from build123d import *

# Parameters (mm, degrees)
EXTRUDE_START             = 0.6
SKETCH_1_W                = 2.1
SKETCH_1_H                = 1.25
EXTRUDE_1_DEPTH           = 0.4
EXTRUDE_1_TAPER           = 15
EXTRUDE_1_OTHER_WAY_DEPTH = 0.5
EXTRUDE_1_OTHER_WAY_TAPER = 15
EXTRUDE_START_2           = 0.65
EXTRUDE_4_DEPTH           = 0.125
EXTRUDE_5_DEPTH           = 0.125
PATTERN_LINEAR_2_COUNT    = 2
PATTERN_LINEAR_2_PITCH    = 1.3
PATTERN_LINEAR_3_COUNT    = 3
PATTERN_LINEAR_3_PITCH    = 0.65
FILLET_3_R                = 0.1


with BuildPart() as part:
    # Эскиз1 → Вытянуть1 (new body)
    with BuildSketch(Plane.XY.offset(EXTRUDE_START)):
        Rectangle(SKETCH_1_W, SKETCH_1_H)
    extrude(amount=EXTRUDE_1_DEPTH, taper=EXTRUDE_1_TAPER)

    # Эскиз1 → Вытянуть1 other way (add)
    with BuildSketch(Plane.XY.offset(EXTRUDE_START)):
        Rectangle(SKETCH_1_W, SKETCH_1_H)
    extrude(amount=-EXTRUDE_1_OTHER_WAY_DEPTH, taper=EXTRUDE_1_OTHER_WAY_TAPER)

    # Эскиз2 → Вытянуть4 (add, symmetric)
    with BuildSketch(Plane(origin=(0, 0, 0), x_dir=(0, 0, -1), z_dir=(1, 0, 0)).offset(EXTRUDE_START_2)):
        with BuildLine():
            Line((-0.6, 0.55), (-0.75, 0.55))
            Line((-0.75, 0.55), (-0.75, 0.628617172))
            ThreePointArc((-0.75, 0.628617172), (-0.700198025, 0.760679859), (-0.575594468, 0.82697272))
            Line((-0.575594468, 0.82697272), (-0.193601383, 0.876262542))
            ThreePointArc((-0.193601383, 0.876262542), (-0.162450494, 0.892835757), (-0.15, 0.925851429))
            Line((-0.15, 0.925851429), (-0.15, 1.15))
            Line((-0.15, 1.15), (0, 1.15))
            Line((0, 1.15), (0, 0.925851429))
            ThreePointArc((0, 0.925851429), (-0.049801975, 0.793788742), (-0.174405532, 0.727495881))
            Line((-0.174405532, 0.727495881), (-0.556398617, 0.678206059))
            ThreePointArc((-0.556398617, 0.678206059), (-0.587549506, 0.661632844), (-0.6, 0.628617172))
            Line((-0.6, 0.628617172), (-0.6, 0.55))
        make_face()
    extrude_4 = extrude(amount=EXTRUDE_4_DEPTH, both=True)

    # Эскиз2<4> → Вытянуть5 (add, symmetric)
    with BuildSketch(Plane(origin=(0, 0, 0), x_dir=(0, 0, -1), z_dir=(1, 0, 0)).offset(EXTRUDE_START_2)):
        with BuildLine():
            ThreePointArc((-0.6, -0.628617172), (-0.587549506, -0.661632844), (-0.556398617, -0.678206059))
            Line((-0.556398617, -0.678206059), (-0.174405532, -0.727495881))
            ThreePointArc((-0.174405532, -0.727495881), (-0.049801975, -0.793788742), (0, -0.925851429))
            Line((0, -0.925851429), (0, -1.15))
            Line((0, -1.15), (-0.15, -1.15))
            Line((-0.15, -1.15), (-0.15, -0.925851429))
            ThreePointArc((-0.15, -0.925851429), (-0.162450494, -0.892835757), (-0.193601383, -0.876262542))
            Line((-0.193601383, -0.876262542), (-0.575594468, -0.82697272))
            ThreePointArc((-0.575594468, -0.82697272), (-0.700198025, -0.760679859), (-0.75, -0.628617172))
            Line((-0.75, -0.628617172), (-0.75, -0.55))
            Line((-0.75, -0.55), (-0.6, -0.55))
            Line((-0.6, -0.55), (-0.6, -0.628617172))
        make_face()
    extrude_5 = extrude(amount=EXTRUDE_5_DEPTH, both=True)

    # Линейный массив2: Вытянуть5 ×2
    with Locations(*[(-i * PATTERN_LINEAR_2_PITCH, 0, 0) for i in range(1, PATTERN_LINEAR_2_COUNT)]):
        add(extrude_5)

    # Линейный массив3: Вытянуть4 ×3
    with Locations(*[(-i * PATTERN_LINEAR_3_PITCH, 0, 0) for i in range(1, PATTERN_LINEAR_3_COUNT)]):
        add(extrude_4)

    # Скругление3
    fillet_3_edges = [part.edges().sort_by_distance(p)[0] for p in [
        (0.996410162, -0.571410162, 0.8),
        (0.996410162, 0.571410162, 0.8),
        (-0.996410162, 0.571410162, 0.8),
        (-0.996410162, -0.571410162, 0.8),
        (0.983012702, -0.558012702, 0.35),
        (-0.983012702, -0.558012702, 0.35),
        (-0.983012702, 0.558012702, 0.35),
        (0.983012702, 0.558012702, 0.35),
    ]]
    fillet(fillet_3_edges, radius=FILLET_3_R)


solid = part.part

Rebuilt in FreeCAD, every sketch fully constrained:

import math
import FreeCAD as App
import Part
import Sketcher

V = App.Vector
Q = App.Units.Quantity


def edges_at(feature, points):
    """Names of the edges that pass closest to the given points."""
    edges = feature.Shape.Edges
    near = lambda p: min(range(len(edges)), key=lambda i: edges[i].distToShape(Part.Vertex(*p))[0])
    return sorted({f"Edge{near(p) + 1}" for p in points})


def add_polygon(sketch, points):
    """Adds a closed chain of lines whose ends are joined by coincident constraints."""
    first, n = sketch.GeometryCount, len(points)
    for a, b in zip(points, points[1:] + points[:1]):
        sketch.addGeometry(Part.LineSegment(App.Vector(*a, 0), App.Vector(*b, 0)), False)
    for i in range(n):
        sketch.addConstraint(Sketcher.Constraint("Coincident", first + i, 2, first + (i + 1) % n, 1))

doc = App.newDocument("Part")
body = doc.addObject("PartDesign::Body", "Body")

# Sketch on XY plane
sketch1 = body.newObject("Sketcher::SketchObject", "Sketch")
sketch1.AttachmentSupport = (doc.getObject("XY_Plane"), [""])
sketch1.MapMode = "FlatFace"
sketch1.AttachmentOffset = App.Placement(V(0, 0, 0.6), App.Rotation())
add_polygon(sketch1, [(-1.1, 0.6), (-1.1, -0.6), (1.1, -0.6), (1.1, 0.6)])  # lines 0-3
sketch1.addConstraint(Sketcher.Constraint("Vertical", 0))
sketch1.addConstraint(Sketcher.Constraint("Horizontal", 1))
sketch1.addConstraint(Sketcher.Constraint("Vertical", 2))
sketch1.addConstraint(Sketcher.Constraint("Horizontal", 3))
sketch1.addConstraint(Sketcher.Constraint("Symmetric", 0, 2, 2, 2, -1, 1))
sketch1.addConstraint(Sketcher.Constraint("DistanceX", 1, 1, 1, 2, Q("2.1 mm")))
sketch1.addConstraint(Sketcher.Constraint("DistanceY", 0, 2, 0, 1, Q("1.25 mm")))
pad1 = body.newObject("PartDesign::Pad", "Pad")
pad1.Profile = sketch1
pad1.Length = 0.4
pad1.TaperAngle = -15

# Sketch on XY plane
sketch2 = body.newObject("Sketcher::SketchObject", "Sketch001")
sketch2.AttachmentSupport = (doc.getObject("XY_Plane"), [""])
sketch2.MapMode = "FlatFace"
sketch2.AttachmentOffset = App.Placement(V(0, 0, 0.6), App.Rotation())
add_polygon(sketch2, [(-1.1, 0.6), (-1.1, -0.6), (1.1, -0.6), (1.1, 0.6)])  # lines 0-3
sketch2.addConstraint(Sketcher.Constraint("Vertical", 0))
sketch2.addConstraint(Sketcher.Constraint("Horizontal", 1))
sketch2.addConstraint(Sketcher.Constraint("Vertical", 2))
sketch2.addConstraint(Sketcher.Constraint("Horizontal", 3))
sketch2.addConstraint(Sketcher.Constraint("Symmetric", 0, 2, 2, 2, -1, 1))
sketch2.addConstraint(Sketcher.Constraint("DistanceX", 1, 1, 1, 2, Q("2.1 mm")))
sketch2.addConstraint(Sketcher.Constraint("DistanceY", 0, 2, 0, 1, Q("1.25 mm")))
pad2 = body.newObject("PartDesign::Pad", "Pad001")
pad2.Profile = sketch2
pad2.Length = 0.5
pad2.Reversed = True
pad2.TaperAngle = -15

# Sketch on YZ plane
sketch3 = body.newObject("Sketcher::SketchObject", "Sketch002")
sketch3.AttachmentSupport = (doc.getObject("YZ_Plane"), [""])
sketch3.MapMode = "FlatFace"
sketch3.AttachmentOffset = App.Placement(V(0, 0, 0.65), App.Rotation())
sketch3.addGeometry(Part.LineSegment(V(0.55, 0.75, 0), V(0.55, 0.6, 0)), False)
sketch3.addGeometry(Part.LineSegment(V(0.55, 0.6, 0), V(0.63, 0.6, 0)), False)
sketch3.addGeometry(Part.ArcOfCircle(Part.Circle(V(0.63, 0.55, 0), V(0, 0, 1), 0.05), math.radians(7), math.radians(90)), False)
sketch3.addGeometry(Part.LineSegment(V(0.68, 0.56, 0), V(0.73, 0.17, 0)), False)
sketch3.addGeometry(Part.ArcOfCircle(Part.Circle(V(0.93, 0.2, 0), V(0, 0, 1), 0.2), math.radians(-173), math.radians(-90)), False)
sketch3.addGeometry(Part.LineSegment(V(0.93, 0, 0), V(1.15, 0, 0)), False)
sketch3.addGeometry(Part.LineSegment(V(1.15, 0, 0), V(1.15, 0.15, 0)), False)
sketch3.addGeometry(Part.LineSegment(V(1.15, 0.15, 0), V(0.93, 0.15, 0)), False)
sketch3.addGeometry(Part.ArcOfCircle(Part.Circle(V(0.93, 0.2, 0), V(0, 0, 1), 0.05), math.radians(-173), math.radians(-90)), False)
sketch3.addGeometry(Part.LineSegment(V(0.88, 0.19, 0), V(0.83, 0.58, 0)), False)
sketch3.addGeometry(Part.ArcOfCircle(Part.Circle(V(0.63, 0.55, 0), V(0, 0, 1), 0.2), math.radians(7), math.radians(90)), False)
sketch3.addGeometry(Part.LineSegment(V(0.63, 0.75, 0), V(0.55, 0.75, 0)), False)
sketch3.addConstraint(Sketcher.Constraint("Coincident", 0, 2, 1, 1))
sketch3.addConstraint(Sketcher.Constraint("Tangent", 1, 2, 2, 2))
sketch3.addConstraint(Sketcher.Constraint("Tangent", 2, 1, 3, 1))
sketch3.addConstraint(Sketcher.Constraint("Tangent", 3, 2, 4, 1))
sketch3.addConstraint(Sketcher.Constraint("Tangent", 4, 2, 5, 1))
sketch3.addConstraint(Sketcher.Constraint("Coincident", 5, 2, 6, 1))
sketch3.addConstraint(Sketcher.Constraint("Coincident", 6, 2, 7, 1))
sketch3.addConstraint(Sketcher.Constraint("Tangent", 7, 2, 8, 2))
sketch3.addConstraint(Sketcher.Constraint("Tangent", 8, 1, 9, 1))
sketch3.addConstraint(Sketcher.Constraint("Tangent", 9, 2, 10, 1))
sketch3.addConstraint(Sketcher.Constraint("Tangent", 10, 2, 11, 1))
sketch3.addConstraint(Sketcher.Constraint("Coincident", 11, 2, 0, 1))
sketch3.addConstraint(Sketcher.Constraint("Vertical", 0))
sketch3.addConstraint(Sketcher.Constraint("Horizontal", 1))
sketch3.addConstraint(Sketcher.Constraint("Horizontal", 5))
sketch3.addConstraint(Sketcher.Constraint("Vertical", 6))
sketch3.addConstraint(Sketcher.Constraint("Horizontal", 7))
sketch3.addConstraint(Sketcher.Constraint("Horizontal", 11))
sketch3.addConstraint(Sketcher.Constraint("Coincident", 8, 3, 4, 3))
sketch3.addConstraint(Sketcher.Constraint("Coincident", 10, 3, 2, 3))
sketch3.addConstraint(Sketcher.Constraint("Equal", 2, 8))
sketch3.addConstraint(Sketcher.Constraint("Equal", 4, 10))
sketch3.addConstraint(Sketcher.Constraint("PointOnObject", 4, 2, -1))
sketch3.addConstraint(Sketcher.Constraint("Radius", 4, Q("0.2 mm")))
sketch3.addConstraint(Sketcher.Constraint("Radius", 2, Q("0.05 mm")))
sketch3.addConstraint(Sketcher.Constraint("DistanceY", -1, 1, 0, 2, Q("0.6 mm")))
sketch3.addConstraint(Sketcher.Constraint("DistanceX", -1, 1, 0, 2, Q("0.55 mm")))
sketch3.addConstraint(Sketcher.Constraint("DistanceX", -1, 1, 5, 2, Q("1.15 mm")))
sketch3.addConstraint(Sketcher.Constraint("DistanceX", 5, 1, 5, 2, Q("0.224149 mm")))
sketch3.addConstraint(Sketcher.Constraint("DistanceY", -1, 1, 2, 1, Q("0.556399 mm")))
pad3 = body.newObject("PartDesign::Pad", "Pad002")
pad3.Profile = sketch3
pad3.Length = 0.25
pad3.Midplane = True

# Sketch on YZ plane
sketch4 = body.newObject("Sketcher::SketchObject", "Sketch003")
sketch4.AttachmentSupport = (doc.getObject("YZ_Plane"), [""])
sketch4.MapMode = "FlatFace"
sketch4.AttachmentOffset = App.Placement(V(0, 0, 0.65), App.Rotation())
sketch4.addGeometry(Part.ArcOfCircle(Part.Circle(V(-0.63, 0.55, 0), V(0, 0, 1), 0.05), math.radians(90), math.radians(173)), False)
sketch4.addGeometry(Part.LineSegment(V(-0.63, 0.6, 0), V(-0.55, 0.6, 0)), False)
sketch4.addGeometry(Part.LineSegment(V(-0.55, 0.6, 0), V(-0.55, 0.75, 0)), False)
sketch4.addGeometry(Part.LineSegment(V(-0.55, 0.75, 0), V(-0.63, 0.75, 0)), False)
sketch4.addGeometry(Part.ArcOfCircle(Part.Circle(V(-0.63, 0.55, 0), V(0, 0, 1), 0.2), math.radians(90), math.radians(173)), False)
sketch4.addGeometry(Part.LineSegment(V(-0.83, 0.58, 0), V(-0.88, 0.19, 0)), False)
sketch4.addGeometry(Part.ArcOfCircle(Part.Circle(V(-0.93, 0.2, 0), V(0, 0, 1), 0.05), math.radians(-90), math.radians(-7)), False)
sketch4.addGeometry(Part.LineSegment(V(-0.93, 0.15, 0), V(-1.15, 0.15, 0)), False)
sketch4.addGeometry(Part.LineSegment(V(-1.15, 0.15, 0), V(-1.15, 0, 0)), False)
sketch4.addGeometry(Part.LineSegment(V(-1.15, 0, 0), V(-0.93, 0, 0)), False)
sketch4.addGeometry(Part.ArcOfCircle(Part.Circle(V(-0.93, 0.2, 0), V(0, 0, 1), 0.2), math.radians(-90), math.radians(-7)), False)
sketch4.addGeometry(Part.LineSegment(V(-0.73, 0.17, 0), V(-0.68, 0.56, 0)), False)
sketch4.addConstraint(Sketcher.Constraint("Tangent", 0, 1, 1, 1))
sketch4.addConstraint(Sketcher.Constraint("Coincident", 1, 2, 2, 1))
sketch4.addConstraint(Sketcher.Constraint("Coincident", 2, 2, 3, 1))
sketch4.addConstraint(Sketcher.Constraint("Tangent", 3, 2, 4, 1))
sketch4.addConstraint(Sketcher.Constraint("Tangent", 4, 2, 5, 1))
sketch4.addConstraint(Sketcher.Constraint("Tangent", 5, 2, 6, 2))
sketch4.addConstraint(Sketcher.Constraint("Tangent", 6, 1, 7, 1))
sketch4.addConstraint(Sketcher.Constraint("Coincident", 7, 2, 8, 1))
sketch4.addConstraint(Sketcher.Constraint("Coincident", 8, 2, 9, 1))
sketch4.addConstraint(Sketcher.Constraint("Tangent", 9, 2, 10, 1))
sketch4.addConstraint(Sketcher.Constraint("Tangent", 10, 2, 11, 1))
sketch4.addConstraint(Sketcher.Constraint("Tangent", 11, 2, 0, 2))
sketch4.addConstraint(Sketcher.Constraint("Horizontal", 1))
sketch4.addConstraint(Sketcher.Constraint("Vertical", 2))
sketch4.addConstraint(Sketcher.Constraint("Horizontal", 3))
sketch4.addConstraint(Sketcher.Constraint("Horizontal", 7))
sketch4.addConstraint(Sketcher.Constraint("Vertical", 8))
sketch4.addConstraint(Sketcher.Constraint("Horizontal", 9))
sketch4.addConstraint(Sketcher.Constraint("Coincident", 4, 3, 0, 3))
sketch4.addConstraint(Sketcher.Constraint("Coincident", 10, 3, 6, 3))
sketch4.addConstraint(Sketcher.Constraint("Equal", 0, 6))
sketch4.addConstraint(Sketcher.Constraint("Equal", 4, 10))
sketch4.addConstraint(Sketcher.Constraint("PointOnObject", 8, 2, -1))
sketch4.addConstraint(Sketcher.Constraint("Radius", 4, Q("0.2 mm")))
sketch4.addConstraint(Sketcher.Constraint("Radius", 0, Q("0.05 mm")))
sketch4.addConstraint(Sketcher.Constraint("DistanceY", -1, 1, 0, 1, Q("0.6 mm")))
sketch4.addConstraint(Sketcher.Constraint("DistanceX", 1, 2, -1, 1, Q("0.55 mm")))
sketch4.addConstraint(Sketcher.Constraint("DistanceX", 7, 2, -1, 1, Q("1.15 mm")))
sketch4.addConstraint(Sketcher.Constraint("DistanceX", 7, 2, 7, 1, Q("0.224149 mm")))
sketch4.addConstraint(Sketcher.Constraint("DistanceY", -1, 1, 5, 2, Q("0.193601 mm")))
pad4 = body.newObject("PartDesign::Pad", "Pad003")
pad4.Profile = sketch4
pad4.Length = 0.25
pad4.Midplane = True
doc.recompute()

linearpattern = body.newObject("PartDesign::LinearPattern", "LinearPattern")
linearpattern.Originals = [pad4]
linearpattern.Direction = (doc.getObject("X_Axis"), [""])
linearpattern.Mode = "offset"
linearpattern.Offset = 1.3
linearpattern.Occurrences = 2
linearpattern.Reversed = True
body.Tip = linearpattern
doc.recompute()

linearpattern2 = body.newObject("PartDesign::LinearPattern", "LinearPattern001")
linearpattern2.Originals = [pad3]
linearpattern2.Direction = (doc.getObject("X_Axis"), [""])
linearpattern2.Mode = "offset"
linearpattern2.Offset = 0.65
linearpattern2.Occurrences = 3
linearpattern2.Reversed = True
body.Tip = linearpattern2
doc.recompute()

fillet = body.newObject("PartDesign::Fillet", "Fillet")
fillet.Base = (linearpattern2, edges_at(linearpattern2, [
    (0.996, -0.571, 0.8),
    (0.996, 0.571, 0.8),
    (-0.996, 0.571, 0.8),
    (-0.996, -0.571, 0.8),
    (0.983, -0.558, 0.35),
    (-0.983, -0.558, 0.35),
    (-0.983, 0.558, 0.35),
    (0.983, 0.558, 0.35),
]))
fillet.Radius = 0.1

doc.recompute()
